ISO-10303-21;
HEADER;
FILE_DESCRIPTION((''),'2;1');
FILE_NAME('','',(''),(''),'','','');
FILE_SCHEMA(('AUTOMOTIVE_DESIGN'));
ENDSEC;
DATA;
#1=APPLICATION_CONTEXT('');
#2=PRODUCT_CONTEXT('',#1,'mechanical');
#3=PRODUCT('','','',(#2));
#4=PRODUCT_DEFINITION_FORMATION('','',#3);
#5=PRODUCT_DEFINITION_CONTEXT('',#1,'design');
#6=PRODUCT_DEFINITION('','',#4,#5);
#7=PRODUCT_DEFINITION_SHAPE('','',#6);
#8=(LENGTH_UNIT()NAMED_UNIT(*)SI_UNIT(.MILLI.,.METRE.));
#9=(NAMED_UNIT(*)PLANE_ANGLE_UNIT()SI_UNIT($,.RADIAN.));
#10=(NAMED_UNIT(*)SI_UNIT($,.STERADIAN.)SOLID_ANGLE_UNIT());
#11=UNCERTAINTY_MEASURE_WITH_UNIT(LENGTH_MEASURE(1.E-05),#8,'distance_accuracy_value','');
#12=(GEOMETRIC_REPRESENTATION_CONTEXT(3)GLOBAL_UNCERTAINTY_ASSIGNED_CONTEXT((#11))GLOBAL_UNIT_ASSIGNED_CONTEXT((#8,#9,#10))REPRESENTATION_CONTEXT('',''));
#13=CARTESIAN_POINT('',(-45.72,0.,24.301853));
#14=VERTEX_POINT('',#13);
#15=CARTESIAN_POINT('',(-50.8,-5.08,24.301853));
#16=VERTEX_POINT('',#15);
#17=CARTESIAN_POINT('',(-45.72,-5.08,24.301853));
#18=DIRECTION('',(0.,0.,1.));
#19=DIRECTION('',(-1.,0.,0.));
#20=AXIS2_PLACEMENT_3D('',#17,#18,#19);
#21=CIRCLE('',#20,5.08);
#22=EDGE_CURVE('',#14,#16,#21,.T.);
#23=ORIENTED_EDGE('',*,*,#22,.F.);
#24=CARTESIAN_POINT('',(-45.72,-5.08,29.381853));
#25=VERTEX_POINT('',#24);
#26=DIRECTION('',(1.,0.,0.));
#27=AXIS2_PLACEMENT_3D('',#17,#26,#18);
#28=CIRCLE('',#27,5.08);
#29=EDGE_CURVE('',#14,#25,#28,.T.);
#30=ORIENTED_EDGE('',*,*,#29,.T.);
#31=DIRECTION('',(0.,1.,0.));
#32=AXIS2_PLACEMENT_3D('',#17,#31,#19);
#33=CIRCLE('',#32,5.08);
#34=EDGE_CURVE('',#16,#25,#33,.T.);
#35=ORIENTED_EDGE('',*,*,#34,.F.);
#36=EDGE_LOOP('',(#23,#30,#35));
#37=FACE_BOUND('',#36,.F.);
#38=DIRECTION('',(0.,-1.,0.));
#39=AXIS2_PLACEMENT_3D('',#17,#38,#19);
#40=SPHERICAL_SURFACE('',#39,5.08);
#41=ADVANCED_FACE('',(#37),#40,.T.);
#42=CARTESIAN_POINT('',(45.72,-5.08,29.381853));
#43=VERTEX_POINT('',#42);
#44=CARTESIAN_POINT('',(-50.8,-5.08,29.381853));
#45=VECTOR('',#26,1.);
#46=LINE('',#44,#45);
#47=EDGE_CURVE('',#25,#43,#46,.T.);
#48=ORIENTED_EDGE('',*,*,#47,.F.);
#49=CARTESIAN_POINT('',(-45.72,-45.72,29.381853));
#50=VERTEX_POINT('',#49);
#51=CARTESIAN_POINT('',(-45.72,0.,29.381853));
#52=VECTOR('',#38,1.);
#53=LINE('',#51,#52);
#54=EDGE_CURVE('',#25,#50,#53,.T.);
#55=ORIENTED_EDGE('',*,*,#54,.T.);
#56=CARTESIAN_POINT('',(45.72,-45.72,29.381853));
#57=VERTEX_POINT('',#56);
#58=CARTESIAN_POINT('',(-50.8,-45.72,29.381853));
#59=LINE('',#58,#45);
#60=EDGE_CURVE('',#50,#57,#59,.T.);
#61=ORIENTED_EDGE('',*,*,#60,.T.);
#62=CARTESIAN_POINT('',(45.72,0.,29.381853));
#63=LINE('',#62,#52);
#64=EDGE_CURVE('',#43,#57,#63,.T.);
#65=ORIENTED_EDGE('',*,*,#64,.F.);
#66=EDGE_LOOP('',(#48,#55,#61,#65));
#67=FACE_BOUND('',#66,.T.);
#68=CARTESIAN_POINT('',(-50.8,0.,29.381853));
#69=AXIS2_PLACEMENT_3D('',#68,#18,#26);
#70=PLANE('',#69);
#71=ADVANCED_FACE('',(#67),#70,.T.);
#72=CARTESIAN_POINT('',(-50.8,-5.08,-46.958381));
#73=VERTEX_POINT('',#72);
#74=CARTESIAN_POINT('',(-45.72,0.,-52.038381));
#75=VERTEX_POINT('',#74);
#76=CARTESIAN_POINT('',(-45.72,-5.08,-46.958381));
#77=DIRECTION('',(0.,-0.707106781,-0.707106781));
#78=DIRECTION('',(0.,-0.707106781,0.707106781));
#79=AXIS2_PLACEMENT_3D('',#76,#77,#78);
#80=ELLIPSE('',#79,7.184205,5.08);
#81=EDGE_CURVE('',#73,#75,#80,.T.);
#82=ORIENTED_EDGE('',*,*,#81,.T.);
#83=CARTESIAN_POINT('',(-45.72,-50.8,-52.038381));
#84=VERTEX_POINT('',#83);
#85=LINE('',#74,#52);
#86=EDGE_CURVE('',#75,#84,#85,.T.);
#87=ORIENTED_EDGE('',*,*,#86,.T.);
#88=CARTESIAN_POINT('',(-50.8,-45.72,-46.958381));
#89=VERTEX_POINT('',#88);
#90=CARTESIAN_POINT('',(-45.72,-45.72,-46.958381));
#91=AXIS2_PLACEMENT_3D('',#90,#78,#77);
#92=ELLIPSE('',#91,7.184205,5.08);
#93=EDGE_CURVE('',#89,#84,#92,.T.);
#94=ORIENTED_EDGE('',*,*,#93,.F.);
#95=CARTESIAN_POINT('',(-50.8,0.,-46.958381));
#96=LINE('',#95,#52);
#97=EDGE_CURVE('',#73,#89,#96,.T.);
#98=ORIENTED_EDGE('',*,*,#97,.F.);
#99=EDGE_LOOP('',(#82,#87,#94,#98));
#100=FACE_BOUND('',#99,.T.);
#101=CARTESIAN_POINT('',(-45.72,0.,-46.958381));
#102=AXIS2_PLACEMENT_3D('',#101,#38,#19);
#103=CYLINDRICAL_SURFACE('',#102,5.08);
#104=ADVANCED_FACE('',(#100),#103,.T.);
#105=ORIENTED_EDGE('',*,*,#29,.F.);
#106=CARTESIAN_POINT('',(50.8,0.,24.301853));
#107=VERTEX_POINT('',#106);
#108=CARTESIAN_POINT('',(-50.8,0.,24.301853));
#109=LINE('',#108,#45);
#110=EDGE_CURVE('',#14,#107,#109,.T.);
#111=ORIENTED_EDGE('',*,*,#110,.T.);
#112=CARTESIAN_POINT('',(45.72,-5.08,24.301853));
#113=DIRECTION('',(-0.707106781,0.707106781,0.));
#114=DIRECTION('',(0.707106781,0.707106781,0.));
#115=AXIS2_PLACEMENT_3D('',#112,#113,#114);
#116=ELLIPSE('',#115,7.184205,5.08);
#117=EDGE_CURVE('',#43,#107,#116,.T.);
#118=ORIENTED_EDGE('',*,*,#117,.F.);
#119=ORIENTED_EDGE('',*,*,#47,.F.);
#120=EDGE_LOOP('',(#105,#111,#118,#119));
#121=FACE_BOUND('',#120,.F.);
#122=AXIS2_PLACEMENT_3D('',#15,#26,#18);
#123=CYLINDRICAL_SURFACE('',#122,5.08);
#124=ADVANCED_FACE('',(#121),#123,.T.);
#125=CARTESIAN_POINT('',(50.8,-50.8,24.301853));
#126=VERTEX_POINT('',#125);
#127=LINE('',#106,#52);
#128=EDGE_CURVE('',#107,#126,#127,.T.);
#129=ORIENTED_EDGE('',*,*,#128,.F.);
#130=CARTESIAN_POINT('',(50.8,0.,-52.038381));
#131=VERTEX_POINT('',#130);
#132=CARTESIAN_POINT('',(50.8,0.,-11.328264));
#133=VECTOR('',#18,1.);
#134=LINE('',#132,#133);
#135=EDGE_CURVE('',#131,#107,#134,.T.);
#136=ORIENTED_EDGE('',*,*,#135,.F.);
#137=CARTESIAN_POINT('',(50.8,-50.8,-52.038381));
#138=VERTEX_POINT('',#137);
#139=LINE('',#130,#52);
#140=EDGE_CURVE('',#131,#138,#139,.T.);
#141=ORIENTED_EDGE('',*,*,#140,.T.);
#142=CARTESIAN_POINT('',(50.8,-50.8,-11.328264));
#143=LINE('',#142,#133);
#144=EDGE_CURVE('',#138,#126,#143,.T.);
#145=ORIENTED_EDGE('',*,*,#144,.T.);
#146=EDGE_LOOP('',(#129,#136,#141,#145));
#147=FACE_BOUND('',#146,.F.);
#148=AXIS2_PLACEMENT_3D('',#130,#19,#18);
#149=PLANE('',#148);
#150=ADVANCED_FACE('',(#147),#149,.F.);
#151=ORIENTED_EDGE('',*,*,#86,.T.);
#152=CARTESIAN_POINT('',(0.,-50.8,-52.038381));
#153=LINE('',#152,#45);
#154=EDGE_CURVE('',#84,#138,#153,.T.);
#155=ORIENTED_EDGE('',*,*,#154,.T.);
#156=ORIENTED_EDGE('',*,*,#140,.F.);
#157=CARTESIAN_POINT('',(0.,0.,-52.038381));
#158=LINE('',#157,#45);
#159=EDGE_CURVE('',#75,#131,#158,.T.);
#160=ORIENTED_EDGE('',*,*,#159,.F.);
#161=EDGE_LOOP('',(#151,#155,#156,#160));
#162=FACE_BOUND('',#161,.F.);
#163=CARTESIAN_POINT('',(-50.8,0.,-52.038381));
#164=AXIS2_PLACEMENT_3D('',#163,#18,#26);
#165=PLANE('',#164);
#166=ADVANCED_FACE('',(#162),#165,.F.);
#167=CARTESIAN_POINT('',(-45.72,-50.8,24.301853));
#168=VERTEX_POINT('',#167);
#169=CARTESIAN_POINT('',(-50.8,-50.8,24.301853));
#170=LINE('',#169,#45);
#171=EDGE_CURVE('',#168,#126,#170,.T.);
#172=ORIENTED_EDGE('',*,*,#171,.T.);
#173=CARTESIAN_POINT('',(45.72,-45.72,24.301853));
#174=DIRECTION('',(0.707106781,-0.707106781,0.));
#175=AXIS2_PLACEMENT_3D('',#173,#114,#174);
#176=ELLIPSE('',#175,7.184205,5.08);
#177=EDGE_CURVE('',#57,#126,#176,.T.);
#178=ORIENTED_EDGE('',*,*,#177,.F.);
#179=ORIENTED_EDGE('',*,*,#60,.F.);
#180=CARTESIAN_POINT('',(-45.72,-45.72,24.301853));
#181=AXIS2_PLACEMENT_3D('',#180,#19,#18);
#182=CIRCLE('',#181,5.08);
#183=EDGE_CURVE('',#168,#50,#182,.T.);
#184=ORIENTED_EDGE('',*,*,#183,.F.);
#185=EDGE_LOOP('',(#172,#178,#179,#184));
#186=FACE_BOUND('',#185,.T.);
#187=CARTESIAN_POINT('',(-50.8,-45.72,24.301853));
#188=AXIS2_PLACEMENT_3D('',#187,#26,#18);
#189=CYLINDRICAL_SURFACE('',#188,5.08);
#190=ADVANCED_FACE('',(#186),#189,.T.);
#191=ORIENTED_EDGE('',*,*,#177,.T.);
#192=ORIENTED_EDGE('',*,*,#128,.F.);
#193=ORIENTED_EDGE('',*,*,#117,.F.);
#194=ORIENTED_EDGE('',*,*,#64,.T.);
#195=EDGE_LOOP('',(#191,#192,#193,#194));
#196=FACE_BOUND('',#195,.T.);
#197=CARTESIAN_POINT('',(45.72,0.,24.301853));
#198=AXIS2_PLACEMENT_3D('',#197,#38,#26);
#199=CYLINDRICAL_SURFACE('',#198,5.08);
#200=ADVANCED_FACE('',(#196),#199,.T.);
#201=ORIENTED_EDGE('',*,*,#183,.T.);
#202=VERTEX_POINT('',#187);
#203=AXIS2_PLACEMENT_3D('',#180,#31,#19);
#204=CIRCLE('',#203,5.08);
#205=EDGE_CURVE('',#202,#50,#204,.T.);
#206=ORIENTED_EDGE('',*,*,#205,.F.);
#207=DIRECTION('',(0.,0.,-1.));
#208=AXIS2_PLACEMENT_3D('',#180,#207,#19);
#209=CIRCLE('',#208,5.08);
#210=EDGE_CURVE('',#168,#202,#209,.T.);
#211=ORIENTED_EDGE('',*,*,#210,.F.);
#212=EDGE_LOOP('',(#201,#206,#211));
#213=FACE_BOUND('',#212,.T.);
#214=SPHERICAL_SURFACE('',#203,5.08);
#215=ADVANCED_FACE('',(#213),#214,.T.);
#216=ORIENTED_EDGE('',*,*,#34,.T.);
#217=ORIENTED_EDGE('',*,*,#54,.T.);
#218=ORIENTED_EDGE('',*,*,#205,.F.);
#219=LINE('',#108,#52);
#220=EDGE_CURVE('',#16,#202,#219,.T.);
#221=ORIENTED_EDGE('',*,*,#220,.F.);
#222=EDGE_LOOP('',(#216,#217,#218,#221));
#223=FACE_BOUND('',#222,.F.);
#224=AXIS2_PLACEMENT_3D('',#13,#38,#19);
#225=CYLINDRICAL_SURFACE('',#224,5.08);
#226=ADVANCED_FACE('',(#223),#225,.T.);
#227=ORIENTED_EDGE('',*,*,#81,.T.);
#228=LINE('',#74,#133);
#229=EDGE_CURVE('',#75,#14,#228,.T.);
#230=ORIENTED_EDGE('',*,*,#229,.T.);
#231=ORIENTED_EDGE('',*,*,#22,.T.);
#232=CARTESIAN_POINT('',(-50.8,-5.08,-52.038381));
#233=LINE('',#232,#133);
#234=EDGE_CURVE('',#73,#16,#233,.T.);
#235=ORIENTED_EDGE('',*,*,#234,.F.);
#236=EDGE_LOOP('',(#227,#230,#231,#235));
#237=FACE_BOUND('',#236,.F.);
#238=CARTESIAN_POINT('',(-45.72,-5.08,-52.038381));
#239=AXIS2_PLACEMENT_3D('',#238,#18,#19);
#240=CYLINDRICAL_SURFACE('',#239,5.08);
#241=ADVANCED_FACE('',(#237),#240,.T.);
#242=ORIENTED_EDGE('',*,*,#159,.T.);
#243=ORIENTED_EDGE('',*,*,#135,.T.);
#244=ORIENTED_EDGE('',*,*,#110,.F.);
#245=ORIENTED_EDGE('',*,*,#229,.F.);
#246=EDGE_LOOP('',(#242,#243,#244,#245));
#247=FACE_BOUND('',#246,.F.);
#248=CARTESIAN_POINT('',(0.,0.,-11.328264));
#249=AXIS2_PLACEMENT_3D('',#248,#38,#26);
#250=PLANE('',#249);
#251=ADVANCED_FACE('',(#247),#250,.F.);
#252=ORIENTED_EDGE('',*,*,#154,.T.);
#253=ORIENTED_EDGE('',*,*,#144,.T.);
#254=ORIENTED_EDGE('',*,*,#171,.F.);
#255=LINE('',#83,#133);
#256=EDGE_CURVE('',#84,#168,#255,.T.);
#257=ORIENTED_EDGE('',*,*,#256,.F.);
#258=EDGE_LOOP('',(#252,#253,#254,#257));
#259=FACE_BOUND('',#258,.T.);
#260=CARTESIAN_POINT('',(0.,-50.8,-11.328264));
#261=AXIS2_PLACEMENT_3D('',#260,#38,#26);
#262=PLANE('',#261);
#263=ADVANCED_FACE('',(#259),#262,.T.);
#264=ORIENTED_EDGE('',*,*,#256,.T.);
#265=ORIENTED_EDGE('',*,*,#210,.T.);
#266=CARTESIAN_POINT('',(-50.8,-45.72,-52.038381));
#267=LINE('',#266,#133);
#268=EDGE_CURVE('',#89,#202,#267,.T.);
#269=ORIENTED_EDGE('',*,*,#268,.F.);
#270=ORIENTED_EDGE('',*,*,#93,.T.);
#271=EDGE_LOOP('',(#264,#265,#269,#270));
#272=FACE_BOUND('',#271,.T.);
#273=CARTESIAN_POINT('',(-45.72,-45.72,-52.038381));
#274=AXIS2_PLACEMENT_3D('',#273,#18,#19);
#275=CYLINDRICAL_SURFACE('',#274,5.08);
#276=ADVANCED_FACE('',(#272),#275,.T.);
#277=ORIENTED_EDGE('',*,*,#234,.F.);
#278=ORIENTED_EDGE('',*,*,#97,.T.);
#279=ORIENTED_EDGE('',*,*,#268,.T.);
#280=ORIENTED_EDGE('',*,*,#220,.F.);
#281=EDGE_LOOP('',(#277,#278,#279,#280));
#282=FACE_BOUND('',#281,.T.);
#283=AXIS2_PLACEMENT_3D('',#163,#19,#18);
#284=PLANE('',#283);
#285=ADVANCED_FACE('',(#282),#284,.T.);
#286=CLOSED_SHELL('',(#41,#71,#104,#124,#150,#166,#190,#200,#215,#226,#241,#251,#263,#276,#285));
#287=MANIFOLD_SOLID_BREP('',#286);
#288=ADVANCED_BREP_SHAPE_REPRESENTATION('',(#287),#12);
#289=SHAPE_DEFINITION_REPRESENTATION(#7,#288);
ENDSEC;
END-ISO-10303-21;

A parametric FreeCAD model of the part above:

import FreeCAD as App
import Part
import Sketcher
Q = App.Units.Quantity


def edges_at(feature, points):
    """Names of the edges that pass closest to the given points."""
    edges = feature.Shape.Edges
    near = lambda p: min(range(len(edges)), key=lambda i: edges[i].distToShape(Part.Vertex(*p))[0])
    return sorted({f"Edge{near(p) + 1}" for p in points})


def add_polygon(sketch, points):
    """Adds a closed chain of lines whose ends are joined by coincident constraints."""
    first, n = sketch.GeometryCount, len(points)
    for a, b in zip(points, points[1:] + points[:1]):
        sketch.addGeometry(Part.LineSegment(App.Vector(*a, 0), App.Vector(*b, 0)), False)
    for i in range(n):
        sketch.addConstraint(Sketcher.Constraint("Coincident", first + i, 2, first + (i + 1) % n, 1))

doc = App.newDocument("Part")
body = doc.addObject("PartDesign::Body", "Body")

sketch1 = body.newObject("Sketcher::SketchObject", "Sketch")
sketch1.AttachmentSupport = (doc.getObject("XZ_Plane"), [""])
sketch1.MapMode = "FlatFace"
add_polygon(sketch1, [(-51, 29), (-51, -52), (51, -52), (51, 29)])
sketch1.addConstraint(Sketcher.Constraint("Vertical", 0))
sketch1.addConstraint(Sketcher.Constraint("Horizontal", 1))
sketch1.addConstraint(Sketcher.Constraint("Vertical", 2))
sketch1.addConstraint(Sketcher.Constraint("Horizontal", 3))
sketch1.addConstraint(Sketcher.Constraint("DistanceX", 1, 1, 1, 2, Q("4 in")))
sketch1.addConstraint(Sketcher.Constraint("DistanceX", 0, 2, -1, 1, Q("2 in")))
sketch1.addConstraint(Sketcher.Constraint("DistanceY", 0, 2, 0, 1, Q("81.420234 mm")))
sketch1.addConstraint(Sketcher.Constraint("DistanceY", 0, 2, -1, 1, Q("52.038381 mm")))
pad1 = body.newObject("PartDesign::Pad", "Pad")
pad1.Profile = sketch1
pad1.Length = Q("2 in")
doc.recompute()

fillet = body.newObject("PartDesign::Fillet", "Fillet")
fillet.Base = (pad1, edges_at(pad1, [
    (-50.8, -25.4, 29.382),
    (-50.8, -25.4, -52.038),
    (-50.8, 0, -11.328),
    (-50.8, -50.8, -11.328),
    (0, 0, 29.382),
    (0, -50.8, 29.382),
    (50.8, -25.4, 29.382),
]))
fillet.Radius = Q("0.2 in")

doc.recompute()
